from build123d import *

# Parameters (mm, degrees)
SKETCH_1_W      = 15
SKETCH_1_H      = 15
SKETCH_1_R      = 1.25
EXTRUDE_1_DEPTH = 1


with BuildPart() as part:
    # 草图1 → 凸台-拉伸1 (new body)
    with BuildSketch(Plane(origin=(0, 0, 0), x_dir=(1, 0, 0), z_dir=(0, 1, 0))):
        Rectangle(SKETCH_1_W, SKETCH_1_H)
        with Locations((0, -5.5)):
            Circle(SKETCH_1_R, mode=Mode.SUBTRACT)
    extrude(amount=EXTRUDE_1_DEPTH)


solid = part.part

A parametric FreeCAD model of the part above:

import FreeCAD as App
import Part
import Sketcher
from FreeCAD import Vector
Q = App.Units.Quantity

doc = App.newDocument("Part")
body = doc.addObject("PartDesign::Body", "Body")

# Sketch on XZ plane
sketch1 = doc.addObject("Sketcher::SketchObject", "Sketch")
body.addObject(sketch1)
sketch1.AttachmentSupport = (doc.XZ_Plane, [""])
sketch1.MapMode = "FlatFace"
sketch1.addGeometry([
    Part.LineSegment(Vector(-7.5, -7.5, 0), Vector(-7.5, 7.5, 0)),  # 0
    Part.LineSegment(Vector(-7.5, 7.5, 0), Vector(7.5, 7.5, 0)),  # 1
    Part.LineSegment(Vector(7.5, 7.5, 0), Vector(7.5, -7.5, 0)),  # 2
    Part.LineSegment(Vector(7.5, -7.5, 0), Vector(-7.5, -7.5, 0)),  # 3
    Part.Circle(Vector(0, 5.5, 0), Vector(0, 0, 1), 1.2),  # 4
], False)
sketch1.addConstraint([
    Sketcher.Constraint("Coincident", 0, 2, 1, 1),
    Sketcher.Constraint("Coincident", 1, 2, 2, 1),
    Sketcher.Constraint("Coincident", 2, 2, 3, 1),
    Sketcher.Constraint("Coincident", 3, 2, 0, 1),
    Sketcher.Constraint("Vertical", 0),
    Sketcher.Constraint("Horizontal", 1),
    Sketcher.Constraint("Vertical", 2),
    Sketcher.Constraint("Horizontal", 3),
    Sketcher.Constraint("Symmetric", 0, 2, 2, 2, -1, 1),
    Sketcher.Constraint("PointOnObject", 4, 3, -2),
    Sketcher.Constraint("Equal", 3, 0),
    Sketcher.Constraint("Diameter", 4, Q("2.5 mm")),
    Sketcher.Constraint("DistanceX", 1, 1, 1, 2, Q("15 mm")),
    Sketcher.Constraint("DistanceY", 4, 3, 0, 2, Q("2 mm")),
])
pad1 = doc.addObject("PartDesign::Pad", "Pad")
body.addObject(pad1)
pad1.Profile = sketch1
pad1.Length = 1
pad1.Reversed = True

doc.recompute()
